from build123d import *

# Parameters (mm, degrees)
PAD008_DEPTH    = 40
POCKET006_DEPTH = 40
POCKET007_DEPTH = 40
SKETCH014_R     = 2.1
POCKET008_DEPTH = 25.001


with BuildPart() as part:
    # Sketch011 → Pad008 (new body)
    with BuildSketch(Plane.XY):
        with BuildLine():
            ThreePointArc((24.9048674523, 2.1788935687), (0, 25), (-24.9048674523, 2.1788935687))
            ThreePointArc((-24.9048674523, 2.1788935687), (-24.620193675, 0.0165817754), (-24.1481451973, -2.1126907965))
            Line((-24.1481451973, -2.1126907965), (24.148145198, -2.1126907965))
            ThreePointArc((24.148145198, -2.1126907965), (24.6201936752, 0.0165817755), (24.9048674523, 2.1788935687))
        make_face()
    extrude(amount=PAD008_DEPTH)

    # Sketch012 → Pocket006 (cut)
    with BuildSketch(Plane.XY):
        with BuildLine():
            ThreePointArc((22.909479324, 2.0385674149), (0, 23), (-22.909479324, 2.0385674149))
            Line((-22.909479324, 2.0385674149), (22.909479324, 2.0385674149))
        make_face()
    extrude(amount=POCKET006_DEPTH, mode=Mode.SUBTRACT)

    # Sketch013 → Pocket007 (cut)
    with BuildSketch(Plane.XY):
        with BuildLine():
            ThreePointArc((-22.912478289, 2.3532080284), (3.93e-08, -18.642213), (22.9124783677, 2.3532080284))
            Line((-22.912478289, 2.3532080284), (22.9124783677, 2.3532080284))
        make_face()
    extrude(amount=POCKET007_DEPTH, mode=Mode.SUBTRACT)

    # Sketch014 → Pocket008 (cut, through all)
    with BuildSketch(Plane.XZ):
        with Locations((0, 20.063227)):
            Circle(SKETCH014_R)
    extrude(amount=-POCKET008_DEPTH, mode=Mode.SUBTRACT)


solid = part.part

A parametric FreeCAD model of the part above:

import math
import FreeCAD as App
import Part
import Sketcher

V = App.Vector
Q = App.Units.Quantity

doc = App.newDocument("Part")
body = doc.addObject("PartDesign::Body", "Body")

# Sketch on XY plane
sketch1 = body.newObject("Sketcher::SketchObject", "Sketch")
sketch1.AttachmentSupport = (doc.getObject("XY_Plane"), [""])
sketch1.MapMode = "FlatFace"
sketch1.addGeometry(Part.ArcOfCircle(Part.Circle(V(0, 0, 0), V(0, 0, 1), 25), math.radians(5), math.radians(175)), False)
sketch1.addGeometry(Part.ArcOfCircle(Part.Circle(V(0, 4.4, 0), V(0, 0, 1), 25), math.radians(-175), math.radians(-165)), False)
sketch1.addGeometry(Part.LineSegment(V(-24.1, -2.1, 0), V(24.1, -2.1, 0)), False)
sketch1.addGeometry(Part.ArcOfCircle(Part.Circle(V(0, 4.4, 0), V(0, 0, 1), 25), math.radians(-15), math.radians(-5)), False)
sketch1.addConstraint(Sketcher.Constraint("Coincident", 0, 2, 1, 1))
sketch1.addConstraint(Sketcher.Constraint("Coincident", 1, 2, 2, 1))
sketch1.addConstraint(Sketcher.Constraint("Coincident", 2, 2, 3, 1))
sketch1.addConstraint(Sketcher.Constraint("Coincident", 3, 2, 0, 1))
sketch1.addConstraint(Sketcher.Constraint("Horizontal", 2))
sketch1.addConstraint(Sketcher.Constraint("Coincident", 0, 3, -1, 1))
sketch1.addConstraint(Sketcher.Constraint("Coincident", 3, 3, 1, 3))
sketch1.addConstraint(Sketcher.Constraint("Equal", 0, 1))
sketch1.addConstraint(Sketcher.Constraint("Equal", 1, 3))
sketch1.addConstraint(Sketcher.Constraint("PointOnObject", 1, 3, -2))
sketch1.addConstraint(Sketcher.Constraint("Radius", 0, Q("25 mm")))
sketch1.addConstraint(Sketcher.Constraint("DistanceX", 2, 1, 2, 2, Q("48.29629 mm")))
sketch1.addConstraint(Sketcher.Constraint("DistanceY", 1, 2, -1, 1, Q("2.112691 mm")))
pad1 = body.newObject("PartDesign::Pad", "Pad")
pad1.Profile = sketch1
pad1.Length = 40

# Sketch on XY plane
sketch2 = body.newObject("Sketcher::SketchObject", "Sketch001")
sketch2.AttachmentSupport = (doc.getObject("XY_Plane"), [""])
sketch2.MapMode = "FlatFace"
sketch2.addGeometry(Part.ArcOfCircle(Part.Circle(V(0, 0, 0), V(0, 0, 1), 23), math.radians(5), math.radians(175)), False)
sketch2.addGeometry(Part.LineSegment(V(-23, 2, 0), V(23, 2, 0)), False)
sketch2.addConstraint(Sketcher.Constraint("Coincident", 0, 1, 1, 2))
sketch2.addConstraint(Sketcher.Constraint("Coincident", 1, 1, 0, 2))
sketch2.addConstraint(Sketcher.Constraint("Horizontal", 1))
sketch2.addConstraint(Sketcher.Constraint("Coincident", 0, 3, -1, 1))
sketch2.addConstraint(Sketcher.Constraint("Radius", 0, Q("23 mm")))
sketch2.addConstraint(Sketcher.Constraint("DistanceX", 1, 1, 1, 2, Q("45.818959 mm")))
pocket1 = body.newObject("PartDesign::Pocket", "Pocket")
pocket1.Profile = sketch2
pocket1.Length = 40
pocket1.Reversed = True

# Sketch on XY plane
sketch3 = body.newObject("Sketcher::SketchObject", "Sketch002")
sketch3.AttachmentSupport = (doc.getObject("XY_Plane"), [""])
sketch3.MapMode = "FlatFace"
sketch3.addGeometry(Part.ArcOfCircle(Part.Circle(V(0, 4, 0), V(0, 0, 1), 23), math.radians(-175), math.radians(-5)), False)
sketch3.addGeometry(Part.LineSegment(V(23, 2, 0), V(-23, 2, 0)), False)
sketch3.addConstraint(Sketcher.Constraint("Coincident", 0, 1, 1, 2))
sketch3.addConstraint(Sketcher.Constraint("Coincident", 1, 1, 0, 2))
sketch3.addConstraint(Sketcher.Constraint("Horizontal", 1))
sketch3.addConstraint(Sketcher.Constraint("PointOnObject", 0, 3, -2))
sketch3.addConstraint(Sketcher.Constraint("Radius", 0, Q("23 mm")))
sketch3.addConstraint(Sketcher.Constraint("DistanceX", 1, 2, 1, 1, Q("45.824957 mm")))
sketch3.addConstraint(Sketcher.Constraint("DistanceY", -1, 1, 0, 1, Q("2.353208 mm")))
pocket2 = body.newObject("PartDesign::Pocket", "Pocket001")
pocket2.Profile = sketch3
pocket2.Length = 40
pocket2.Reversed = True

# Sketch on XZ plane
sketch4 = body.newObject("Sketcher::SketchObject", "Sketch003")
sketch4.AttachmentSupport = (doc.getObject("XZ_Plane"), [""])
sketch4.MapMode = "FlatFace"
sketch4.addGeometry(Part.Circle(V(0, 20.1, 0), V(0, 0, 1), 2.1), False)
sketch4.addConstraint(Sketcher.Constraint("PointOnObject", 0, 3, -2))
sketch4.addConstraint(Sketcher.Constraint("Diameter", 0, Q("4.2 mm")))
sketch4.addConstraint(Sketcher.Constraint("DistanceY", -1, 1, 0, 3, Q("20.063227 mm")))
pocket3 = body.newObject("PartDesign::Pocket", "Pocket002")
pocket3.Profile = sketch4
pocket3.Type = "ThroughAll"

doc.recompute()
